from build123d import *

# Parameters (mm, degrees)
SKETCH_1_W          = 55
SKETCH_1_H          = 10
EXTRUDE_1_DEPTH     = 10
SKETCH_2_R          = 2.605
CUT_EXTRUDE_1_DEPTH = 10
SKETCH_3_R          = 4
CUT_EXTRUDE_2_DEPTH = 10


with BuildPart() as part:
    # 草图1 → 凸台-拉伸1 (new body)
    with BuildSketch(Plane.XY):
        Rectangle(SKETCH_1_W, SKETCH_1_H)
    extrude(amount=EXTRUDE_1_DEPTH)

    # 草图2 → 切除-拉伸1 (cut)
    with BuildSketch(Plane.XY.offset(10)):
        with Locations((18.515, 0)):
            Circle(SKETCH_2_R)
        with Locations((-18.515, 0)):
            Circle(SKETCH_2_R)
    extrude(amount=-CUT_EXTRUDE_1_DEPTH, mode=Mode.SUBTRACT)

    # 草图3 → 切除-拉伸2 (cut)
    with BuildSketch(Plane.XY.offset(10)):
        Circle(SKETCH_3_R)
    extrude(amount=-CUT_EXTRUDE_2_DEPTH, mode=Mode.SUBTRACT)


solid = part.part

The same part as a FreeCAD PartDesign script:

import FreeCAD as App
import Part
import Sketcher
Q = App.Units.Quantity


def add_polygon(sketch, points):
    """Adds a closed chain of lines whose ends are joined by coincident constraints."""
    first, n = sketch.GeometryCount, len(points)
    for a, b in zip(points, points[1:] + points[:1]):
        sketch.addGeometry(Part.LineSegment(App.Vector(*a, 0), App.Vector(*b, 0)), False)
    for i in range(n):
        sketch.addConstraint(Sketcher.Constraint("Coincident", first + i, 2, first + (i + 1) % n, 1))

doc = App.newDocument("Part")
params = doc.addObject("Spreadsheet::Sheet", "Params")
for row, (alias, value) in enumerate([
    ("sketch1_width", "55 mm"),
    ("sketch1_height", "10 mm"),
    ("pad1_length", "10 mm"),
    ("sketch2_diameter", "5.21 mm"),
    ("pocket1_length", "10 mm"),
    ("sketch3_diameter", "8 mm"),
    ("pocket2_length", "10 mm"),
], start=1):
    params.set(f"A{row}", alias)
    params.set(f"B{row}", "=" + value)
    params.setAlias(f"B{row}", alias)

body = doc.addObject("PartDesign::Body", "Body")

sketch1 = body.newObject("Sketcher::SketchObject", "Sketch")
sketch1.AttachmentSupport = (doc.getObject("XY_Plane"), [""])
sketch1.MapMode = "FlatFace"
add_polygon(sketch1, [(-28, 5), (-28, -5), (28, -5), (28, 5)])
sketch1.addConstraint([
    Sketcher.Constraint("Vertical", 0),
    Sketcher.Constraint("Horizontal", 1),
    Sketcher.Constraint("Vertical", 2),
    Sketcher.Constraint("Horizontal", 3),
    Sketcher.Constraint("Symmetric", 0, 2, 2, 2, -1, 1),
    Sketcher.Constraint("DistanceX", 1, 1, 1, 2, Q("55 mm")),
    Sketcher.Constraint("DistanceY", 0, 2, 0, 1, Q("10 mm")),
])
sketch1.setExpression("Constraints[9]", "Params.sketch1_width")
sketch1.setExpression("Constraints[10]", "Params.sketch1_height")
pad1 = body.newObject("PartDesign::Pad", "Pad")
pad1.Profile = sketch1
pad1.setExpression("Length", "Params.pad1_length")

sketch2 = body.newObject("Sketcher::SketchObject", "Sketch001")
sketch2.AttachmentSupport = (doc.getObject("XY_Plane"), [""])
sketch2.MapMode = "FlatFace"
sketch2.AttachmentOffset = App.Placement(App.Vector(0, 0, 10), App.Rotation())
sketch2.addGeometry([
    Part.Circle(App.Vector(18.5, 0, 0), App.Vector(0, 0, 1), 2.6),
    Part.Circle(App.Vector(-18.5, 0, 0), App.Vector(0, 0, 1), 2.6),
], False)
sketch2.addConstraint([
    Sketcher.Constraint("Equal", 0, 1),
    Sketcher.Constraint("Symmetric", 0, 3, 1, 3, -1, 1),
    Sketcher.Constraint("PointOnObject", 0, 3, -1),
    Sketcher.Constraint("Diameter", 0, Q("5.21 mm")),
    Sketcher.Constraint("DistanceX", 1, 3, 0, 3, Q("37.03 mm")),
])
sketch2.setExpression("Constraints[3]", "Params.sketch2_diameter")
pocket1 = body.newObject("PartDesign::Pocket", "Pocket")
pocket1.Profile = sketch2
pocket1.setExpression("Length", "Params.pocket1_length")

sketch3 = body.newObject("Sketcher::SketchObject", "Sketch002")
sketch3.AttachmentSupport = (doc.getObject("XY_Plane"), [""])
sketch3.MapMode = "FlatFace"
sketch3.AttachmentOffset = App.Placement(App.Vector(0, 0, 10), App.Rotation())
sketch3.addGeometry(Part.Circle(App.Vector(0, 0, 0), App.Vector(0, 0, 1), 4), False)
sketch3.addConstraint([
    Sketcher.Constraint("Coincident", 0, 3, -1, 1),
    Sketcher.Constraint("Diameter", 0, Q("8 mm")),
])
sketch3.setExpression("Constraints[1]", "Params.sketch3_diameter")
pocket2 = body.newObject("PartDesign::Pocket", "Pocket001")
pocket2.Profile = sketch3
pocket2.setExpression("Length", "Params.pocket2_length")

doc.recompute()
